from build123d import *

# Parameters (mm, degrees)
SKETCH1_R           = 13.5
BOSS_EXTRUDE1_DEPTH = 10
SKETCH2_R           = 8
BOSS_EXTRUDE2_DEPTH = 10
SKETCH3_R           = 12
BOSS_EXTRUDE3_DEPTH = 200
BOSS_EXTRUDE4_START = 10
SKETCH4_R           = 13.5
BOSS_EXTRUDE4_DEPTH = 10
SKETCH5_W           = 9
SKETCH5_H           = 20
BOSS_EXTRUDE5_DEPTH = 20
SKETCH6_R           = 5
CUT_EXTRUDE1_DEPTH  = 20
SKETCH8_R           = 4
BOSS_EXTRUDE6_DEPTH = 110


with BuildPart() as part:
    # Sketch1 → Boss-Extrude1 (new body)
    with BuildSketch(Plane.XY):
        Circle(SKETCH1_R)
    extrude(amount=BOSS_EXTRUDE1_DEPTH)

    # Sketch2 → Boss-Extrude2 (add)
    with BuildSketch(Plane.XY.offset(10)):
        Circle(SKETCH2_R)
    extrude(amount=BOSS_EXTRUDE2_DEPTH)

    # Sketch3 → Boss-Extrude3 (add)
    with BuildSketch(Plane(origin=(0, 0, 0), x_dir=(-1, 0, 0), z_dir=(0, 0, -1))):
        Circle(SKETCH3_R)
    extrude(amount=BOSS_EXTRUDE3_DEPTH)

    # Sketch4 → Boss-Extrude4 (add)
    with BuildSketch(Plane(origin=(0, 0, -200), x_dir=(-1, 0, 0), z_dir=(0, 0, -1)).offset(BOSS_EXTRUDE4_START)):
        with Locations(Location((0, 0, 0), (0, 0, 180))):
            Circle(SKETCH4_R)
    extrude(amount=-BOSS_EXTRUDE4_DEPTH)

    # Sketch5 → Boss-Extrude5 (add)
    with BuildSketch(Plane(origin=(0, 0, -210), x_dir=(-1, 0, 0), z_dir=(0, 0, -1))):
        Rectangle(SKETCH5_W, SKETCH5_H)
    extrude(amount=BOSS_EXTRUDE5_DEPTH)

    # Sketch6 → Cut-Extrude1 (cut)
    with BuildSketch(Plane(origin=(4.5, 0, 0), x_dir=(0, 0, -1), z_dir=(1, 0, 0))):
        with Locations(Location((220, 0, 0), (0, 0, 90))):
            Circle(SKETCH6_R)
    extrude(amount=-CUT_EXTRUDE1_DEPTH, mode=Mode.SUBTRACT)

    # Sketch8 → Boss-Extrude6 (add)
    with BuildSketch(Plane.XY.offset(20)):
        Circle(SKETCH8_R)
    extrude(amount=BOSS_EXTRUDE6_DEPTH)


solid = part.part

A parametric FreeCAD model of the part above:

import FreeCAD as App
import Part
import Sketcher
from FreeCAD import Vector
Q = App.Units.Quantity

doc = App.newDocument("Part")
body = doc.addObject("PartDesign::Body", "Body")

# Sketch on XY plane
sketch1 = body.newObject("Sketcher::SketchObject", "Sketch")
sketch1.AttachmentSupport = (doc.getObject("XY_Plane"), [""])
sketch1.MapMode = "FlatFace"
sketch1.addGeometry(Part.Circle(Vector(0, 0, 0), Vector(0, 0, 1), 14), False)
sketch1.addConstraint([
    Sketcher.Constraint("Coincident", 0, 3, -1, 1),
    Sketcher.Constraint("Diameter", 0, Q("27 mm")),
])
pad1 = body.newObject("PartDesign::Pad", "Pad")
pad1.Profile = sketch1
pad1.Length = 10

# Sketch on XY plane
sketch2 = body.newObject("Sketcher::SketchObject", "Sketch001")
sketch2.AttachmentSupport = (doc.getObject("XY_Plane"), [""])
sketch2.MapMode = "FlatFace"
sketch2.AttachmentOffset = App.Placement(Vector(0, 0, 10), App.Rotation())
sketch2.addGeometry(Part.Circle(Vector(0, 0, 0), Vector(0, 0, 1), 8), False)
sketch2.addConstraint([
    Sketcher.Constraint("Coincident", 0, 3, -1, 1),
    Sketcher.Constraint("Diameter", 0, Q("16 mm")),
])
pad2 = body.newObject("PartDesign::Pad", "Pad001")
pad2.Profile = sketch2
pad2.Length = 10

# Sketch on XY plane
sketch3 = body.newObject("Sketcher::SketchObject", "Sketch002")
sketch3.AttachmentSupport = (doc.getObject("XY_Plane"), [""])
sketch3.MapMode = "FlatFace"
sketch3.addGeometry(Part.Circle(Vector(0, 0, 0), Vector(0, 0, 1), 12), False)
sketch3.addConstraint([
    Sketcher.Constraint("Coincident", 0, 3, -1, 1),
    Sketcher.Constraint("Diameter", 0, Q("24 mm")),
])
pad3 = body.newObject("PartDesign::Pad", "Pad002")
pad3.Profile = sketch3
pad3.Length = 200
pad3.Reversed = True

# Sketch on XY plane
sketch4 = body.newObject("Sketcher::SketchObject", "Sketch003")
sketch4.AttachmentSupport = (doc.getObject("XY_Plane"), [""])
sketch4.MapMode = "FlatFace"
sketch4.AttachmentOffset = App.Placement(Vector(0, 0, -210), App.Rotation())
sketch4.addGeometry(Part.Circle(Vector(0, 0, 0), Vector(0, 0, 1), 14), False)
sketch4.addConstraint([
    Sketcher.Constraint("Coincident", 0, 3, -1, 1),
    Sketcher.Constraint("Diameter", 0, Q("27 mm")),
])
pad4 = body.newObject("PartDesign::Pad", "Pad003")
pad4.Profile = sketch4
pad4.Length = 10

# Sketch on XY plane
sketch5 = body.newObject("Sketcher::SketchObject", "Sketch004")
sketch5.AttachmentSupport = (doc.getObject("XY_Plane"), [""])
sketch5.MapMode = "FlatFace"
sketch5.AttachmentOffset = App.Placement(Vector(0, 0, -210), App.Rotation())
sketch5.addGeometry([
    Part.LineSegment(Vector(4, 10, 0), Vector(4, -10, 0)),
    Part.LineSegment(Vector(4, -10, 0), Vector(-4, -10, 0)),
    Part.LineSegment(Vector(-4, -10, 0), Vector(-4, 10, 0)),
    Part.LineSegment(Vector(-4, 10, 0), Vector(4, 10, 0)),
], False)
sketch5.addConstraint([
    Sketcher.Constraint("Coincident", 0, 2, 1, 1),
    Sketcher.Constraint("Coincident", 1, 2, 2, 1),
    Sketcher.Constraint("Coincident", 2, 2, 3, 1),
    Sketcher.Constraint("Coincident", 3, 2, 0, 1),
    Sketcher.Constraint("Vertical", 0),
    Sketcher.Constraint("Horizontal", 1),
    Sketcher.Constraint("Vertical", 2),
    Sketcher.Constraint("Horizontal", 3),
    Sketcher.Constraint("Symmetric", 0, 2, 2, 2, -1, 1),
    Sketcher.Constraint("DistanceX", 1, 2, 1, 1, Q("9 mm")),
    Sketcher.Constraint("DistanceY", 0, 2, 0, 1, Q("20 mm")),
])
pad5 = body.newObject("PartDesign::Pad", "Pad004")
pad5.Profile = sketch5
pad5.Length = 20
pad5.Reversed = True

# Sketch on YZ plane
sketch6 = body.newObject("Sketcher::SketchObject", "Sketch005")
sketch6.AttachmentSupport = (doc.getObject("YZ_Plane"), [""])
sketch6.MapMode = "FlatFace"
sketch6.AttachmentOffset = App.Placement(Vector(0, 0, 4.5), App.Rotation())
sketch6.addGeometry(Part.Circle(Vector(0, -220, 0), Vector(0, 0, 1), 5), False)
sketch6.addConstraint([
    Sketcher.Constraint("PointOnObject", 0, 3, -2),
    Sketcher.Constraint("Diameter", 0, Q("10 mm")),
    Sketcher.Constraint("DistanceY", 0, 3, -1, 1, Q("220 mm")),
])
pocket1 = body.newObject("PartDesign::Pocket", "Pocket")
pocket1.Profile = sketch6
pocket1.Length = 20

# Sketch on XY plane
sketch7 = body.newObject("Sketcher::SketchObject", "Sketch006")
sketch7.AttachmentSupport = (doc.getObject("XY_Plane"), [""])
sketch7.MapMode = "FlatFace"
sketch7.AttachmentOffset = App.Placement(Vector(0, 0, 20), App.Rotation())
sketch7.addGeometry(Part.Circle(Vector(0, 0, 0), Vector(0, 0, 1), 4), False)
sketch7.addConstraint([
    Sketcher.Constraint("Coincident", 0, 3, -1, 1),
    Sketcher.Constraint("Diameter", 0, Q("8 mm")),
])
pad6 = body.newObject("PartDesign::Pad", "Pad005")
pad6.Profile = sketch7
pad6.Length = 110

doc.recompute()
